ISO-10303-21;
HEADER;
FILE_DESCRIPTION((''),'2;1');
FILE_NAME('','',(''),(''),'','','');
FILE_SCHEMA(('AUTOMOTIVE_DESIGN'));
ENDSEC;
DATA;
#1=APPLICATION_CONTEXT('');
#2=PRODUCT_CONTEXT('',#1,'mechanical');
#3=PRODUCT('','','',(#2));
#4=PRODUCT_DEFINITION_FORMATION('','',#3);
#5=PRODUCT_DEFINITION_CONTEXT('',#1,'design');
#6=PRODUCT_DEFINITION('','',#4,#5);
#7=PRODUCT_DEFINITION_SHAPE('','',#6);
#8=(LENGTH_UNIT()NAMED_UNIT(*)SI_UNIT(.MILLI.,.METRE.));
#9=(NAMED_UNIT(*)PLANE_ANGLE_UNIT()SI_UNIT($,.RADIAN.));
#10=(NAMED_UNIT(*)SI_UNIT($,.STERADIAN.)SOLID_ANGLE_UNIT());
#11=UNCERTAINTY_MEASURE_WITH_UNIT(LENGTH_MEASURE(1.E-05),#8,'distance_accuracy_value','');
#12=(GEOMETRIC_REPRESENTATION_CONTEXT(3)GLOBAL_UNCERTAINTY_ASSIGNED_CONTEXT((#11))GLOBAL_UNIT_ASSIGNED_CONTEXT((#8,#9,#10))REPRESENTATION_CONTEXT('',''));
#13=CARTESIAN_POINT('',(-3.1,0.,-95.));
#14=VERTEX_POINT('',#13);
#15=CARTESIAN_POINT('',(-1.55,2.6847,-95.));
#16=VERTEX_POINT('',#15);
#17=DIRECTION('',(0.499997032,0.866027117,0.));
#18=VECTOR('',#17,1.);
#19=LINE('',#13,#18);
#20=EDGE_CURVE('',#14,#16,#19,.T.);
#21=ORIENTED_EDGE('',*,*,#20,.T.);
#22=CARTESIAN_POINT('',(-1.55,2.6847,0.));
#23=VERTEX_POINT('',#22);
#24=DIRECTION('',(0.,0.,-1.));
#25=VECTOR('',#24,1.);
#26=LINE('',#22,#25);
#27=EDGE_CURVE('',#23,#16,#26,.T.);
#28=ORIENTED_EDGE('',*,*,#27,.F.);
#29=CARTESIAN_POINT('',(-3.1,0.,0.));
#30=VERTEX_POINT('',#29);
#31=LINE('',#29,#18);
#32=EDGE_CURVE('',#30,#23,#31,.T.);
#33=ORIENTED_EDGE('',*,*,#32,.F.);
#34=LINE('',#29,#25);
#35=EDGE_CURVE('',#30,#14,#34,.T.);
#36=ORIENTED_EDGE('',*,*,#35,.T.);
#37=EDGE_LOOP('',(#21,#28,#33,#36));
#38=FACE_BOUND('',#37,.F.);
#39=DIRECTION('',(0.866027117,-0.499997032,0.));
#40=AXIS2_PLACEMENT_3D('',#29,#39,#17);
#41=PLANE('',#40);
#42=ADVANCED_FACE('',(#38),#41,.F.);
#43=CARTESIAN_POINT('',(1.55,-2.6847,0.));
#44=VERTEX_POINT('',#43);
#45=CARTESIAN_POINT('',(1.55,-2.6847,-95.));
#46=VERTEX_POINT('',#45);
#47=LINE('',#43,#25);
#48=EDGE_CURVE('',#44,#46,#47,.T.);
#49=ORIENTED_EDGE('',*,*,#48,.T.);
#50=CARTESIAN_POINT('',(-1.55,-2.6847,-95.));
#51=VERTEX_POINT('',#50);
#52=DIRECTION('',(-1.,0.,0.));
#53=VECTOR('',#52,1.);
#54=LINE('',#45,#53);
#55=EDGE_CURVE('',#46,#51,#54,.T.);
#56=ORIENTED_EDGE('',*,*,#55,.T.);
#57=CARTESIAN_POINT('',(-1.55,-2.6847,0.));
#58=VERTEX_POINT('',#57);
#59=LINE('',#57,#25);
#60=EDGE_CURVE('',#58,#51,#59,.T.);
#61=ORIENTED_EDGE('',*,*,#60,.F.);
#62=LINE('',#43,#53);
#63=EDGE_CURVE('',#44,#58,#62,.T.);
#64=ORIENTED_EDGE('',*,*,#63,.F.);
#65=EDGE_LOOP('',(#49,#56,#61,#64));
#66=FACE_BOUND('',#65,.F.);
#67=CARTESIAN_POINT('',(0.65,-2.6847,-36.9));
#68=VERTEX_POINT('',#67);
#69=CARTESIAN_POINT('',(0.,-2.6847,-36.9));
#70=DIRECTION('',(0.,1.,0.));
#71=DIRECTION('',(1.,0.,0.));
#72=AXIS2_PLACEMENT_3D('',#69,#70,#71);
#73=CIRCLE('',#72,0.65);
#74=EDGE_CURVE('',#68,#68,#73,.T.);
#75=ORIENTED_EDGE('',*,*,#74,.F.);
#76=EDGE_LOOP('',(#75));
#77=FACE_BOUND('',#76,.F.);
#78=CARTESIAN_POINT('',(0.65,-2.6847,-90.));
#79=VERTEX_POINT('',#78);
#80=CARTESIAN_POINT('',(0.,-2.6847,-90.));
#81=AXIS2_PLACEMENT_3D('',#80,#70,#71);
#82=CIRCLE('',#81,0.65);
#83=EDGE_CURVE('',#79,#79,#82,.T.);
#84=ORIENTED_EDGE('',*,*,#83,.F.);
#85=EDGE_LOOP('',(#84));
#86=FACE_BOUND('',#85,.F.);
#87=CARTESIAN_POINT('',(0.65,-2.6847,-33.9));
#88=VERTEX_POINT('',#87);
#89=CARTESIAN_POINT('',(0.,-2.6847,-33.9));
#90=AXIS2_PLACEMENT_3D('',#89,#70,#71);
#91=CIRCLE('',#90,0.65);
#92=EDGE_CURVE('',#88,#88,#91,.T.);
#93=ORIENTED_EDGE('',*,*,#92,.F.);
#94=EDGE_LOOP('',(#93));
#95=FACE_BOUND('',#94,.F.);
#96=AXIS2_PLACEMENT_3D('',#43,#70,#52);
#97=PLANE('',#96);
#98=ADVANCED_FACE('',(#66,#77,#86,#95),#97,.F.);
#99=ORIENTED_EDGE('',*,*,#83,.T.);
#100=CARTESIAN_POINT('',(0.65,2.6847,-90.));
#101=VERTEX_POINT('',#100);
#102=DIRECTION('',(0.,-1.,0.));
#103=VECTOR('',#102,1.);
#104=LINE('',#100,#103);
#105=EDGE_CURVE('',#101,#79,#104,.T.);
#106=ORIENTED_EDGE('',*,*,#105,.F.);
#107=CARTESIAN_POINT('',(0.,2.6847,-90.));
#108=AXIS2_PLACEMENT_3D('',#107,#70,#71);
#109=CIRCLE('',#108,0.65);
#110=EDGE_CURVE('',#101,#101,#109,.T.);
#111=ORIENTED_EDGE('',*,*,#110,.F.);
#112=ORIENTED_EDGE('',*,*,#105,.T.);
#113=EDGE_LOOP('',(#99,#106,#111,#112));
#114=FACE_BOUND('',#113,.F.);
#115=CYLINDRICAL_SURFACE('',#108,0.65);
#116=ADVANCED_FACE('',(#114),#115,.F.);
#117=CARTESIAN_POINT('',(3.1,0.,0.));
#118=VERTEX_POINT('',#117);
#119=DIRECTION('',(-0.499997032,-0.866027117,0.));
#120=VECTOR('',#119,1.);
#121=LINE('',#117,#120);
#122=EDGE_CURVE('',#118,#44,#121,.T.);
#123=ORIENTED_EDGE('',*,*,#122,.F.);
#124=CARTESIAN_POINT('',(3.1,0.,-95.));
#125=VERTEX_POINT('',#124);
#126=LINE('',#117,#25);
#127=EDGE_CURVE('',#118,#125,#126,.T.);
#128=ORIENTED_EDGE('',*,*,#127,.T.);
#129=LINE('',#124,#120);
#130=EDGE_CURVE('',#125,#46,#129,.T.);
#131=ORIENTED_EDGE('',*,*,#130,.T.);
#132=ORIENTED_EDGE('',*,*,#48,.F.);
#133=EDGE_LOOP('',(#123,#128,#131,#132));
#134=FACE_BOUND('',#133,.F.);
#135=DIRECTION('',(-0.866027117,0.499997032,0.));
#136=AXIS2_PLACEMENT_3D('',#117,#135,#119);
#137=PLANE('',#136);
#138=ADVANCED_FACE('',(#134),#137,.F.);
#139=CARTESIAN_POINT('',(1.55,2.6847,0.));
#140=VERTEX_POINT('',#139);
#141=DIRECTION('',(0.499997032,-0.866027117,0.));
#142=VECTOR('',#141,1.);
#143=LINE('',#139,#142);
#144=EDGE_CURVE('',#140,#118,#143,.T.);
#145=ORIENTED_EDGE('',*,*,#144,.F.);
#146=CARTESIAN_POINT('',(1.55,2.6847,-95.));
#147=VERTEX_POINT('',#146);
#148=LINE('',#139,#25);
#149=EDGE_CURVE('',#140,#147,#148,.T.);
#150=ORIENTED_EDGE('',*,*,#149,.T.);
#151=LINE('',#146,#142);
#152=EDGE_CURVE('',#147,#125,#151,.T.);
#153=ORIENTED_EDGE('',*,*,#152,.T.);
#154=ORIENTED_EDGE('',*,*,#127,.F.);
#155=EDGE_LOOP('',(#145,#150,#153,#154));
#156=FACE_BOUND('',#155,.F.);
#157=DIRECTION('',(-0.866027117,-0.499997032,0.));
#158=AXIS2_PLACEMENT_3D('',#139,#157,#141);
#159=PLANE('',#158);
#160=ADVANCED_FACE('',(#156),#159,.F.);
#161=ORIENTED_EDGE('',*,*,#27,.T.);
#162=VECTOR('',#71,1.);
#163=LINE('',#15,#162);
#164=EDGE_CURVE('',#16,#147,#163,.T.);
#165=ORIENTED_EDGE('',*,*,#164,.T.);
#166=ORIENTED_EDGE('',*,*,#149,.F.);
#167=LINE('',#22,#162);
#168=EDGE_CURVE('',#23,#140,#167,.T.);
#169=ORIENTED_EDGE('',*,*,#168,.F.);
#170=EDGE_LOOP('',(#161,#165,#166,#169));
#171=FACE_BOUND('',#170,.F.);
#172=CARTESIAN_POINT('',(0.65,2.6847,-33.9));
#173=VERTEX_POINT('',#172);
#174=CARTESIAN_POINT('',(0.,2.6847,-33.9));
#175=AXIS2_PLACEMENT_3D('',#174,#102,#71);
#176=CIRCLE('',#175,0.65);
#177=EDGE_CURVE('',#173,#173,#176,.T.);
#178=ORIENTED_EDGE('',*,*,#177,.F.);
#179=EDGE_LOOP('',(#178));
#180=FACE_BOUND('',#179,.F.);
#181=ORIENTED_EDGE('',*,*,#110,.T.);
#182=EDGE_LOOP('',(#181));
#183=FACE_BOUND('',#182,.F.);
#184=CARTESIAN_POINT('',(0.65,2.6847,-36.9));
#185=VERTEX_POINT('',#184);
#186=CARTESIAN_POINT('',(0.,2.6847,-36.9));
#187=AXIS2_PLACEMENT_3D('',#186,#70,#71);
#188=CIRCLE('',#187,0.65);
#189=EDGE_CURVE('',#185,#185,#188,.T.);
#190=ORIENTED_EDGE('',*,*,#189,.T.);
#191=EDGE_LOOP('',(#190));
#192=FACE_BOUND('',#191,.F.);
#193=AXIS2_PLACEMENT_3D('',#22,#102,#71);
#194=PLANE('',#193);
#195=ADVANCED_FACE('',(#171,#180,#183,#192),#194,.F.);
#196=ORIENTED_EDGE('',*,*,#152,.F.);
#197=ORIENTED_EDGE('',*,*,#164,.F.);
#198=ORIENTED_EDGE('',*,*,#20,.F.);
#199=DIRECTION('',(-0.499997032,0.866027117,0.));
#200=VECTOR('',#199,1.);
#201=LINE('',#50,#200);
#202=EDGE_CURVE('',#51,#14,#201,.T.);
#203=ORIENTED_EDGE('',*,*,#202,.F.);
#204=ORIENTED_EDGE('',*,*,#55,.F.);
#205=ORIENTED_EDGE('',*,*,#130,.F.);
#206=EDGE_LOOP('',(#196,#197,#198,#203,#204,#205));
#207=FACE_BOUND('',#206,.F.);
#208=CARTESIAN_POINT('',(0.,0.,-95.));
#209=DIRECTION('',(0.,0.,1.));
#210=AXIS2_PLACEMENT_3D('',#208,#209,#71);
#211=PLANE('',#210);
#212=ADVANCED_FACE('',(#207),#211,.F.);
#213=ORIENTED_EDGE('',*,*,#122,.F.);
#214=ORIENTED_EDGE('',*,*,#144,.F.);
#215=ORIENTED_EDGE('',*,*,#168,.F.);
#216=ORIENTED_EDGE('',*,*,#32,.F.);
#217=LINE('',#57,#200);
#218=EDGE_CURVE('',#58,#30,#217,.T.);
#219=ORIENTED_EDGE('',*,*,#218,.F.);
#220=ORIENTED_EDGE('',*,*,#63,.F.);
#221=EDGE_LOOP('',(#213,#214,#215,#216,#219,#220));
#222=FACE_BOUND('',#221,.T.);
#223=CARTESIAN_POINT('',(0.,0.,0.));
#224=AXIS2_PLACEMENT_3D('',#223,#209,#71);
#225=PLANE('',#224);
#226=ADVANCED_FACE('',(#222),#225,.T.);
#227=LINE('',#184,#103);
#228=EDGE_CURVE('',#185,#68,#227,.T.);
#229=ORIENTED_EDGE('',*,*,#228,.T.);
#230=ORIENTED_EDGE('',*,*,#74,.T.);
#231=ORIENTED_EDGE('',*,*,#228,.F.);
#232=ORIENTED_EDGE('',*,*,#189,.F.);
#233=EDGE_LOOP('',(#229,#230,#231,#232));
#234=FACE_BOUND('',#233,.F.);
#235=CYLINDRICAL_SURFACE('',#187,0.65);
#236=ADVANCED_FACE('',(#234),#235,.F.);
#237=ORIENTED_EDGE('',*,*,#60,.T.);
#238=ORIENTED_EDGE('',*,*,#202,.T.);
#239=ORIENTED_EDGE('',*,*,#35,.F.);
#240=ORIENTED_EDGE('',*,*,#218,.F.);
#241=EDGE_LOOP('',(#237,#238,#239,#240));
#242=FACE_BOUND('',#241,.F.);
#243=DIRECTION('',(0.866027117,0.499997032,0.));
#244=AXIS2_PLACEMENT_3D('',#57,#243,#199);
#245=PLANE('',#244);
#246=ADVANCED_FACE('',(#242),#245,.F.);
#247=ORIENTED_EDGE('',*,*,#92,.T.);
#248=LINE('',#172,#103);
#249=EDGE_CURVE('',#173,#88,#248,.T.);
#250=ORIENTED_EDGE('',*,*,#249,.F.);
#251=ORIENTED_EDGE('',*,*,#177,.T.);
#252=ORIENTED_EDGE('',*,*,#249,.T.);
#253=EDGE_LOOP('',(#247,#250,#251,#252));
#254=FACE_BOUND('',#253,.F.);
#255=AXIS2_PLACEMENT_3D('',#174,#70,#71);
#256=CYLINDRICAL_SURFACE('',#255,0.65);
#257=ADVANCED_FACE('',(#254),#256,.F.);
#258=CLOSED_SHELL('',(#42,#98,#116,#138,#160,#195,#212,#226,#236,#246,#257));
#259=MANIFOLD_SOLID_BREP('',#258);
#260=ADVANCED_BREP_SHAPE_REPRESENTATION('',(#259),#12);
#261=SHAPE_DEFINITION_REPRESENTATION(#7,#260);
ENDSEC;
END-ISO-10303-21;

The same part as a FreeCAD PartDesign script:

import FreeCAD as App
import Part
import Sketcher

V = App.Vector


def add_polygon(sketch, points):
    """Adds a closed chain of lines whose ends are joined by coincident constraints."""
    first, n = sketch.GeometryCount, len(points)
    for a, b in zip(points, points[1:] + points[:1]):
        sketch.addGeometry(Part.LineSegment(App.Vector(*a, 0), App.Vector(*b, 0)), False)
    for i in range(n):
        sketch.addConstraint(Sketcher.Constraint("Coincident", first + i, 2, first + (i + 1) % n, 1))

doc = App.newDocument("Part")
body = doc.addObject("PartDesign::Body", "Body")

sketch1 = body.newObject("Sketcher::SketchObject", "Sketch")
sketch1.AttachmentSupport = (doc.getObject("XY_Plane"), [""])
sketch1.MapMode = "FlatFace"
add_polygon(sketch1, [(1.55, 2.6847), (-1.55, 2.6847), (-3.1, 0), (-1.55, -2.6847), (1.55, -2.6847), (3.1, 0)])
sketch1.addConstraint(Sketcher.Constraint("Horizontal", 0))
sketch1.addConstraint(Sketcher.Constraint("Horizontal", 3))
sketch1.addConstraint(Sketcher.Constraint("Symmetric", 0, 2, 3, 2, -1, 1))
sketch1.addConstraint(Sketcher.Constraint("Symmetric", 1, 2, 4, 2, -1, 1))
sketch1.addConstraint(Sketcher.Constraint("PointOnObject", 1, 2, -1))
sketch1.addConstraint(Sketcher.Constraint("Parallel", 2, 5))
sketch1.addConstraint(Sketcher.Constraint("Vertical", 0, 2, 2, 2))
sketch1.addConstraint(Sketcher.Constraint("DistanceX", 0, 2, 0, 1, 3.1))
sketch1.addConstraint(Sketcher.Constraint("Distance", 1, 3.1))
sketch1.addConstraint(Sketcher.Constraint("DistanceX", 1, 2, -1, 1, 3.1))
pad1 = body.newObject("PartDesign::Pad", "Pad")
pad1.Profile = sketch1
pad1.Length = 95
pad1.Reversed = True

sketch2 = body.newObject("Sketcher::SketchObject", "Sketch001")
sketch2.AttachmentSupport = (doc.getObject("XZ_Plane"), [""])
sketch2.MapMode = "FlatFace"
sketch2.AttachmentOffset = App.Placement(V(0, 0, -2.6847), App.Rotation())
sketch2.addGeometry(Part.Circle(V(0, -33.9, 0), V(0, 0, 1), 0.65), False)
sketch2.addGeometry(Part.Circle(V(0, -36.9, 0), V(0, 0, 1), 0.65), False)
sketch2.addGeometry(Part.Circle(V(0, -90, 0), V(0, 0, 1), 0.65), False)
sketch2.addConstraint(Sketcher.Constraint("Equal", 0, 1))
sketch2.addConstraint(Sketcher.Constraint("Equal", 1, 2))
sketch2.addConstraint(Sketcher.Constraint("PointOnObject", 0, 3, -2))
sketch2.addConstraint(Sketcher.Constraint("PointOnObject", 1, 3, -2))
sketch2.addConstraint(Sketcher.Constraint("PointOnObject", 2, 3, -2))
sketch2.addConstraint(Sketcher.Constraint("Diameter", 0, 1.3))
sketch2.addConstraint(Sketcher.Constraint("DistanceY", 1, 3, 0, 3, 3.0))
sketch2.addConstraint(Sketcher.Constraint("DistanceY", 0, 3, -1, 1, 33.9))
sketch2.addConstraint(Sketcher.Constraint("DistanceY", 2, 3, -1, 1, 90.0))
pocket1 = body.newObject("PartDesign::Pocket", "Pocket")
pocket1.Profile = sketch2
pocket1.Length = 10
pocket1.Reversed = True

doc.recompute()
